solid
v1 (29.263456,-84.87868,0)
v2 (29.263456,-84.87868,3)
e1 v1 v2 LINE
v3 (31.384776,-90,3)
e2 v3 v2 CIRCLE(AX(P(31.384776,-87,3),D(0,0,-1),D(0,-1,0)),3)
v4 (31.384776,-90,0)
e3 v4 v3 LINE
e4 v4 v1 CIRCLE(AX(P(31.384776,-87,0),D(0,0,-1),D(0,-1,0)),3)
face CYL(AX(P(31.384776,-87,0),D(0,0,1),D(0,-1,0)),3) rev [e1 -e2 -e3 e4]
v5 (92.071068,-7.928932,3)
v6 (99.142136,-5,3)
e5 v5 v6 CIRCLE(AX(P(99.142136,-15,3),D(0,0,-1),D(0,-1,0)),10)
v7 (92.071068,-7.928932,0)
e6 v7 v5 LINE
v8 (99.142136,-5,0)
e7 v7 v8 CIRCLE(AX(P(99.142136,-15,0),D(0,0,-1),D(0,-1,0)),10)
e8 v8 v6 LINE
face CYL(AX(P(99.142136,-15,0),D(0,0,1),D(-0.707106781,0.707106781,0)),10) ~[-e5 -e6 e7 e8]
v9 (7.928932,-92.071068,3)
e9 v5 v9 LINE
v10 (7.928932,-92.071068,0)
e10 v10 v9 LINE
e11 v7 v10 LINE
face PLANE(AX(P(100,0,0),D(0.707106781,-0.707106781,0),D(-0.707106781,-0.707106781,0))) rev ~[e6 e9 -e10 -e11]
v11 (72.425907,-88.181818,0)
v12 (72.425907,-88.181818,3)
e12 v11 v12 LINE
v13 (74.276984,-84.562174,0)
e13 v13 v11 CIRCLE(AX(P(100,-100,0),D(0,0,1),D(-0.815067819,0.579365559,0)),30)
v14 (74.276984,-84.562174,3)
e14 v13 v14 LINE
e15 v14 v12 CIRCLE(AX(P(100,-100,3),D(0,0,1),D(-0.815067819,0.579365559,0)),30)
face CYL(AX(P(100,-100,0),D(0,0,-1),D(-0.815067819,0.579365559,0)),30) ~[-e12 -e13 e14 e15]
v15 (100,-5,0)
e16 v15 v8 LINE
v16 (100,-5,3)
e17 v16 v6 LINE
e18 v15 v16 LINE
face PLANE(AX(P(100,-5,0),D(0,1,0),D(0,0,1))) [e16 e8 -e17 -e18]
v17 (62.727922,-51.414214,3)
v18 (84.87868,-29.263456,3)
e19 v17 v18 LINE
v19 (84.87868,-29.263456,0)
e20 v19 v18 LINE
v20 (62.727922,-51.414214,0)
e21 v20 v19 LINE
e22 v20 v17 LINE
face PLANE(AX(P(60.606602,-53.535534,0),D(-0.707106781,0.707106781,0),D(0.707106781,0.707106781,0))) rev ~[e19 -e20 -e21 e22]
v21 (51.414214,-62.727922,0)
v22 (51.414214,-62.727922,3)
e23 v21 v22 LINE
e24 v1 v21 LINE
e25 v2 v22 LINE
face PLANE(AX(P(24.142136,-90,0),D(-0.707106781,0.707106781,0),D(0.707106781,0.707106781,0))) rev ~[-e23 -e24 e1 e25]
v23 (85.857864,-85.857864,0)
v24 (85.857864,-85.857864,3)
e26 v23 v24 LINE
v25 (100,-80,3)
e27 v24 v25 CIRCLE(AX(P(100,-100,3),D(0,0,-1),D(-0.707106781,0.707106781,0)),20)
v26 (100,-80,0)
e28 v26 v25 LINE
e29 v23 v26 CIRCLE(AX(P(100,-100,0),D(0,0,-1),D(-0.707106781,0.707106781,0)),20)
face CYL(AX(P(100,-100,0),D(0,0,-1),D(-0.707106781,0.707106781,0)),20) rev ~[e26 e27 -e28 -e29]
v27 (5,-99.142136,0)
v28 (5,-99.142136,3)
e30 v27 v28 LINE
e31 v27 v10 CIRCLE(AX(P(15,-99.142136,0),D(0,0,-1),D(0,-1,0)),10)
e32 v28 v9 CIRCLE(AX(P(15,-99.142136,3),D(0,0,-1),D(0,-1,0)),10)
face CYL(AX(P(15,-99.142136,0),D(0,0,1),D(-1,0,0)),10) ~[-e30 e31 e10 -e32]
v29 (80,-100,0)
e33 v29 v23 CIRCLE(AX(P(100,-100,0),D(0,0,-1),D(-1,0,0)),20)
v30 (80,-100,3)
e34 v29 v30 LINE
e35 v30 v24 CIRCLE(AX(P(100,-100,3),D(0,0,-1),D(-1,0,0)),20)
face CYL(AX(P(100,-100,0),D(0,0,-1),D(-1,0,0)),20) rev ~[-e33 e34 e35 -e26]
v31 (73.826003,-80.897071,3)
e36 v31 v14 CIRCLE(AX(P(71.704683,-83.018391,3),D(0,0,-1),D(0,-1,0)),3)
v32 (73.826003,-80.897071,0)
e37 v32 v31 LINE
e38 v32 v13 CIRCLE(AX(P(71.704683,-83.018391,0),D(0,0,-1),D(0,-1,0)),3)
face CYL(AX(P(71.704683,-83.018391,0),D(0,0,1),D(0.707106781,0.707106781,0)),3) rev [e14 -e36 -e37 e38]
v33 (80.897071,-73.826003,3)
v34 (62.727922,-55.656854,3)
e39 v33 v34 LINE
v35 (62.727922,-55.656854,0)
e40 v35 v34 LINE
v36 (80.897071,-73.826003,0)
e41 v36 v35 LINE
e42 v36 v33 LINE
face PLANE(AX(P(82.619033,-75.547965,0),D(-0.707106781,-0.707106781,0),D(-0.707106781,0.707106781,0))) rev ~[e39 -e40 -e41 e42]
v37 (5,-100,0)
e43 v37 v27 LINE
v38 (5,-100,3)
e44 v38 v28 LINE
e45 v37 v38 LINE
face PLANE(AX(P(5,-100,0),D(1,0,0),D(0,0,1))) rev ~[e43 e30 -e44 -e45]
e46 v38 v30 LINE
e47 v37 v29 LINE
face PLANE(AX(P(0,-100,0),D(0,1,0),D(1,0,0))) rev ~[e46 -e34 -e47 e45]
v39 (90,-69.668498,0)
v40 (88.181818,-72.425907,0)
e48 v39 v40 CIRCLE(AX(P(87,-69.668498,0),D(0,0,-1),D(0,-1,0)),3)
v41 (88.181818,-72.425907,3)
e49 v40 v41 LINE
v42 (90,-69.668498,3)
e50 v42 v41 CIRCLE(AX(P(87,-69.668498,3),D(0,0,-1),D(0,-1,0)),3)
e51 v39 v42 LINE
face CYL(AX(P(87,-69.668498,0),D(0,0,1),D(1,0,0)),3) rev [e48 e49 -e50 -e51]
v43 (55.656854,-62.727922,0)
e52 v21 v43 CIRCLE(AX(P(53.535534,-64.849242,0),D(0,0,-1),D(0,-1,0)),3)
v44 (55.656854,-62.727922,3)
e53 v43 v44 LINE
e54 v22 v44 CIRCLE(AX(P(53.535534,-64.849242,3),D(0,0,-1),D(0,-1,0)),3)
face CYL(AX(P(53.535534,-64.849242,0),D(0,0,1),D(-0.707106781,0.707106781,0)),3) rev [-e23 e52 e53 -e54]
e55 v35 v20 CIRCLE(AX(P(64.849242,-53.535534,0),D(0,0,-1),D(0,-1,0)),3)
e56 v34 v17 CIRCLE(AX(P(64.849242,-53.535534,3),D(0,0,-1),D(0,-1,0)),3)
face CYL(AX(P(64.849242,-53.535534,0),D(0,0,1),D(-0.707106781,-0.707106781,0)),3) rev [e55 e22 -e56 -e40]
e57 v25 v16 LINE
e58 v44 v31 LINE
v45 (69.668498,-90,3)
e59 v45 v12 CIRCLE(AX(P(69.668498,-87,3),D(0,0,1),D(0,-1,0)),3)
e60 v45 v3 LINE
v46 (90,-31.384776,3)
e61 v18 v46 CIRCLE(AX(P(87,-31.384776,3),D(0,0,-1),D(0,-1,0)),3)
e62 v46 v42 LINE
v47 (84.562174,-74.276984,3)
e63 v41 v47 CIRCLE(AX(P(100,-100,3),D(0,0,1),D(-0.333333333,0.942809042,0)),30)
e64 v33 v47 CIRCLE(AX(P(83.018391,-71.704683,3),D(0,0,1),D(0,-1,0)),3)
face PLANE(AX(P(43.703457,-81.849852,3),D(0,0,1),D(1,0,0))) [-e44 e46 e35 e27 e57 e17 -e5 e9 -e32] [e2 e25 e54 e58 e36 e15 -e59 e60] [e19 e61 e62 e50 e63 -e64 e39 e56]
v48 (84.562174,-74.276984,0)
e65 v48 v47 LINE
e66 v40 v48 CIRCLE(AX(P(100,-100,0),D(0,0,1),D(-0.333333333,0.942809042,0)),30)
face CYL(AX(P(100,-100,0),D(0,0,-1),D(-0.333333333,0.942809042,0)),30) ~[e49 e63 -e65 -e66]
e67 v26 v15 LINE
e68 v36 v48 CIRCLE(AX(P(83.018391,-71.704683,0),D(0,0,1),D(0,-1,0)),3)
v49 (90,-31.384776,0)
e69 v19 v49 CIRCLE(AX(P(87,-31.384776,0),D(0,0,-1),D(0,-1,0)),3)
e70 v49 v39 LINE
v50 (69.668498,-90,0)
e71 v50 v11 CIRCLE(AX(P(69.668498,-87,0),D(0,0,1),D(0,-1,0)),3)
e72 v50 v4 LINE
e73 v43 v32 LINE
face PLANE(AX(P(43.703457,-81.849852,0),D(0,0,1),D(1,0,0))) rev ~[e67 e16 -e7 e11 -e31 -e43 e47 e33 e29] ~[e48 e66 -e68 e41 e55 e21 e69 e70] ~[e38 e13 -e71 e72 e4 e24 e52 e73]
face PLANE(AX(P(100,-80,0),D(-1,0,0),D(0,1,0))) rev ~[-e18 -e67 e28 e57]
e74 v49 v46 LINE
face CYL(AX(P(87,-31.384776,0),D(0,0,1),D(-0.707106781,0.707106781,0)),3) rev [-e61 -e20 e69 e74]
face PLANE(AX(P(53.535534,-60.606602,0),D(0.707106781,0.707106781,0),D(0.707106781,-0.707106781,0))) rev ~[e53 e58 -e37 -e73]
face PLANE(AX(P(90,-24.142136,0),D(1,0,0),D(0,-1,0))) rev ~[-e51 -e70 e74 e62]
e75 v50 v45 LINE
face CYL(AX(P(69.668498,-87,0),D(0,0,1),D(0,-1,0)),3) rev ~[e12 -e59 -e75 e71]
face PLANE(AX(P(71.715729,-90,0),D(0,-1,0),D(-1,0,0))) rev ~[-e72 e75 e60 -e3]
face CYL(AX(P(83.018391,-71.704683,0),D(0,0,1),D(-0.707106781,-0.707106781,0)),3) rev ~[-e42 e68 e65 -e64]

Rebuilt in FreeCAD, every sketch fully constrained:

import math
import FreeCAD as App
import Part
import Sketcher

V = App.Vector
Q = App.Units.Quantity


def edges_at(feature, points):
    """Names of the edges that pass closest to the given points."""
    edges = feature.Shape.Edges
    near = lambda p: min(range(len(edges)), key=lambda i: edges[i].distToShape(Part.Vertex(*p))[0])
    return sorted({f"Edge{near(p) + 1}" for p in points})


def add_polygon(sketch, points):
    """Adds a closed chain of lines whose ends are joined by coincident constraints."""
    first, n = sketch.GeometryCount, len(points)
    for a, b in zip(points, points[1:] + points[:1]):
        sketch.addGeometry(Part.LineSegment(App.Vector(*a, 0), App.Vector(*b, 0)), False)
    for i in range(n):
        sketch.addConstraint(Sketcher.Constraint("Coincident", first + i, 2, first + (i + 1) % n, 1))

doc = App.newDocument("Part")
body = doc.addObject("PartDesign::Body", "Body")

sketch1 = body.newObject("Sketcher::SketchObject", "Sketch")
sketch1.AttachmentSupport = (doc.getObject("XY_Plane"), [""])
sketch1.MapMode = "FlatFace"
sketch1.addGeometry([
    Part.LineSegment(V(0, -100, 0), V(80, -100, 0)),
    Part.ArcOfCircle(Part.Circle(V(100, -100, 0), V(0, 0, 1), 20), math.radians(135), math.radians(180)),
    Part.ArcOfCircle(Part.Circle(V(100, -100, 0), V(0, 0, 1), 20), math.radians(90), math.radians(135)),
    Part.LineSegment(V(100, -80, 0), V(100, 0, 0)),
    Part.LineSegment(V(100, 0, 0), V(0, -100, 0)),
    Part.LineSegment(V(83, -76, 0), V(61, -54, 0)),
    Part.LineSegment(V(61, -54, 0), V(90, -24, 0)),
    Part.LineSegment(V(90, -24, 0), V(90, -72, 0)),
    Part.ArcOfCircle(Part.Circle(V(100, -100, 0), V(0, 0, 1), 30), math.radians(109.47), math.radians(125.41)),
    Part.LineSegment(V(72, -90, 0), V(24, -90, 0)),
    Part.LineSegment(V(24, -90, 0), V(54, -61, 0)),
    Part.LineSegment(V(54, -61, 0), V(76, -83, 0)),
    Part.ArcOfCircle(Part.Circle(V(100, -100, 0), V(0, 0, 1), 30), math.radians(144.59), math.radians(160.53)),
], False)
sketch1.addConstraint([
    Sketcher.Constraint("Coincident", 0, 2, 1, 2),
    Sketcher.Constraint("Tangent", 1, 1, 2, 2),
    Sketcher.Constraint("Coincident", 2, 1, 3, 1),
    Sketcher.Constraint("Coincident", 3, 2, 4, 1),
    Sketcher.Constraint("Coincident", 4, 2, 0, 1),
    Sketcher.Constraint("Coincident", 5, 2, 6, 1),
    Sketcher.Constraint("Coincident", 6, 2, 7, 1),
    Sketcher.Constraint("Coincident", 7, 2, 8, 1),
    Sketcher.Constraint("Coincident", 8, 2, 5, 1),
    Sketcher.Constraint("Coincident", 9, 2, 10, 1),
    Sketcher.Constraint("Coincident", 10, 2, 11, 1),
    Sketcher.Constraint("Coincident", 11, 2, 12, 1),
    Sketcher.Constraint("Coincident", 12, 2, 9, 1),
    Sketcher.Constraint("Horizontal", 0),
    Sketcher.Constraint("Vertical", 3),
    Sketcher.Constraint("Vertical", 7),
    Sketcher.Constraint("Horizontal", 9),
    Sketcher.Constraint("Coincident", 8, 3, 1, 3),
    Sketcher.Constraint("Coincident", 12, 3, 1, 3),
    Sketcher.Constraint("Equal", 1, 2),
    Sketcher.Constraint("Equal", 8, 12),
    Sketcher.Constraint("PointOnObject", 3, 2, -1),
    Sketcher.Constraint("PointOnObject", 4, 2, -2),
    Sketcher.Constraint("Perpendicular", 4, 5),
    Sketcher.Constraint("Perpendicular", 5, 6),
    Sketcher.Constraint("Parallel", 6, 10),
    Sketcher.Constraint("Perpendicular", 10, 11),
    Sketcher.Constraint("Horizontal", 12, 3, 0, 2),
    Sketcher.Constraint("Vertical", 12, 3, 2, 1),
    Sketcher.Constraint("Equal", 0, 3),
    Sketcher.Constraint("Equal", 9, 7),
    Sketcher.Constraint("Equal", 6, 10),
    Sketcher.Constraint("Equal", 5, 11),
    Sketcher.Constraint("Radius", 1, Q("20 mm")),
    Sketcher.Constraint("Radius", 8, Q("30 mm")),
    Sketcher.Constraint("DistanceX", 0, 1, 0, 2, Q("80 mm")),
    Sketcher.Constraint("DistanceX", -1, 1, 6, 2, Q("90 mm")),
    Sketcher.Constraint("DistanceX", -1, 1, 5, 2, Q("60.606602 mm")),
    Sketcher.Constraint("DistanceY", 1, 1, 8, 2, Q("10.309899 mm")),
    Sketcher.Constraint("DistanceX", 10, 2, 8, 2, Q("29.083499 mm")),
])
pad1 = body.newObject("PartDesign::Pad", "Pad")
pad1.Profile = sketch1
pad1.Length = 3
doc.recompute()

fillet = body.newObject("PartDesign::Fillet", "Fillet")
fillet.Base = (pad1, edges_at(pad1, [
    (24.142, -90, 1.5),
    (53.536, -60.607, 1.5),
    (71.716, -90, 1.5),
    (75.548, -82.619, 1.5),
    (60.607, -53.536, 1.5),
    (90, -71.716, 1.5),
    (82.619, -75.548, 1.5),
    (90, -24.142, 1.5),
]))
fillet.Radius = 3

sketch2 = body.newObject("Sketcher::SketchObject", "Sketch001")
sketch2.AttachmentSupport = (doc.getObject("XZ_Plane"), [""])
sketch2.MapMode = "FlatFace"
sketch2.AttachmentOffset = App.Placement(V(0, 0, 100), App.Rotation())
add_polygon(sketch2, [(0, 3), (0, 0), (5, 0), (5, 3)])
sketch2.addConstraint([
    Sketcher.Constraint("Vertical", 0),
    Sketcher.Constraint("Horizontal", 1),
    Sketcher.Constraint("Vertical", 2),
    Sketcher.Constraint("Horizontal", 3),
    Sketcher.Constraint("Coincident", 0, 2, -1, 1),
    Sketcher.Constraint("DistanceX", 1, 1, 1, 2, Q("5 mm")),
    Sketcher.Constraint("DistanceY", 0, 2, 0, 1, Q("3 mm")),
])
pocket1 = body.newObject("PartDesign::Pocket", "Pocket")
pocket1.Profile = sketch2
pocket1.Length = 25

sketch3 = body.newObject("Sketcher::SketchObject", "Sketch002")
sketch3.AttachmentSupport = (doc.getObject("YZ_Plane"), [""])
sketch3.MapMode = "FlatFace"
sketch3.AttachmentOffset = App.Placement(V(0, 0, 100), App.Rotation())
add_polygon(sketch3, [(-5, 3), (-5, 0), (0, 0), (0, 3)])
sketch3.addConstraint([
    Sketcher.Constraint("Vertical", 0),
    Sketcher.Constraint("Horizontal", 1),
    Sketcher.Constraint("Vertical", 2),
    Sketcher.Constraint("Horizontal", 3),
    Sketcher.Constraint("Coincident", 1, 2, -1, 1),
    Sketcher.Constraint("DistanceX", 1, 1, 1, 2, Q("5 mm")),
    Sketcher.Constraint("DistanceY", 0, 2, 0, 1, Q("3 mm")),
])
pocket2 = body.newObject("PartDesign::Pocket", "Pocket001")
pocket2.Profile = sketch3
pocket2.Length = 25
doc.recompute()

fillet2 = body.newObject("PartDesign::Fillet", "Fillet001")
fillet2.Base = (pocket2, edges_at(pocket2, [(5, -95, 1.5), (95, -5, 1.5)]))
fillet2.Radius = 10

doc.recompute()
